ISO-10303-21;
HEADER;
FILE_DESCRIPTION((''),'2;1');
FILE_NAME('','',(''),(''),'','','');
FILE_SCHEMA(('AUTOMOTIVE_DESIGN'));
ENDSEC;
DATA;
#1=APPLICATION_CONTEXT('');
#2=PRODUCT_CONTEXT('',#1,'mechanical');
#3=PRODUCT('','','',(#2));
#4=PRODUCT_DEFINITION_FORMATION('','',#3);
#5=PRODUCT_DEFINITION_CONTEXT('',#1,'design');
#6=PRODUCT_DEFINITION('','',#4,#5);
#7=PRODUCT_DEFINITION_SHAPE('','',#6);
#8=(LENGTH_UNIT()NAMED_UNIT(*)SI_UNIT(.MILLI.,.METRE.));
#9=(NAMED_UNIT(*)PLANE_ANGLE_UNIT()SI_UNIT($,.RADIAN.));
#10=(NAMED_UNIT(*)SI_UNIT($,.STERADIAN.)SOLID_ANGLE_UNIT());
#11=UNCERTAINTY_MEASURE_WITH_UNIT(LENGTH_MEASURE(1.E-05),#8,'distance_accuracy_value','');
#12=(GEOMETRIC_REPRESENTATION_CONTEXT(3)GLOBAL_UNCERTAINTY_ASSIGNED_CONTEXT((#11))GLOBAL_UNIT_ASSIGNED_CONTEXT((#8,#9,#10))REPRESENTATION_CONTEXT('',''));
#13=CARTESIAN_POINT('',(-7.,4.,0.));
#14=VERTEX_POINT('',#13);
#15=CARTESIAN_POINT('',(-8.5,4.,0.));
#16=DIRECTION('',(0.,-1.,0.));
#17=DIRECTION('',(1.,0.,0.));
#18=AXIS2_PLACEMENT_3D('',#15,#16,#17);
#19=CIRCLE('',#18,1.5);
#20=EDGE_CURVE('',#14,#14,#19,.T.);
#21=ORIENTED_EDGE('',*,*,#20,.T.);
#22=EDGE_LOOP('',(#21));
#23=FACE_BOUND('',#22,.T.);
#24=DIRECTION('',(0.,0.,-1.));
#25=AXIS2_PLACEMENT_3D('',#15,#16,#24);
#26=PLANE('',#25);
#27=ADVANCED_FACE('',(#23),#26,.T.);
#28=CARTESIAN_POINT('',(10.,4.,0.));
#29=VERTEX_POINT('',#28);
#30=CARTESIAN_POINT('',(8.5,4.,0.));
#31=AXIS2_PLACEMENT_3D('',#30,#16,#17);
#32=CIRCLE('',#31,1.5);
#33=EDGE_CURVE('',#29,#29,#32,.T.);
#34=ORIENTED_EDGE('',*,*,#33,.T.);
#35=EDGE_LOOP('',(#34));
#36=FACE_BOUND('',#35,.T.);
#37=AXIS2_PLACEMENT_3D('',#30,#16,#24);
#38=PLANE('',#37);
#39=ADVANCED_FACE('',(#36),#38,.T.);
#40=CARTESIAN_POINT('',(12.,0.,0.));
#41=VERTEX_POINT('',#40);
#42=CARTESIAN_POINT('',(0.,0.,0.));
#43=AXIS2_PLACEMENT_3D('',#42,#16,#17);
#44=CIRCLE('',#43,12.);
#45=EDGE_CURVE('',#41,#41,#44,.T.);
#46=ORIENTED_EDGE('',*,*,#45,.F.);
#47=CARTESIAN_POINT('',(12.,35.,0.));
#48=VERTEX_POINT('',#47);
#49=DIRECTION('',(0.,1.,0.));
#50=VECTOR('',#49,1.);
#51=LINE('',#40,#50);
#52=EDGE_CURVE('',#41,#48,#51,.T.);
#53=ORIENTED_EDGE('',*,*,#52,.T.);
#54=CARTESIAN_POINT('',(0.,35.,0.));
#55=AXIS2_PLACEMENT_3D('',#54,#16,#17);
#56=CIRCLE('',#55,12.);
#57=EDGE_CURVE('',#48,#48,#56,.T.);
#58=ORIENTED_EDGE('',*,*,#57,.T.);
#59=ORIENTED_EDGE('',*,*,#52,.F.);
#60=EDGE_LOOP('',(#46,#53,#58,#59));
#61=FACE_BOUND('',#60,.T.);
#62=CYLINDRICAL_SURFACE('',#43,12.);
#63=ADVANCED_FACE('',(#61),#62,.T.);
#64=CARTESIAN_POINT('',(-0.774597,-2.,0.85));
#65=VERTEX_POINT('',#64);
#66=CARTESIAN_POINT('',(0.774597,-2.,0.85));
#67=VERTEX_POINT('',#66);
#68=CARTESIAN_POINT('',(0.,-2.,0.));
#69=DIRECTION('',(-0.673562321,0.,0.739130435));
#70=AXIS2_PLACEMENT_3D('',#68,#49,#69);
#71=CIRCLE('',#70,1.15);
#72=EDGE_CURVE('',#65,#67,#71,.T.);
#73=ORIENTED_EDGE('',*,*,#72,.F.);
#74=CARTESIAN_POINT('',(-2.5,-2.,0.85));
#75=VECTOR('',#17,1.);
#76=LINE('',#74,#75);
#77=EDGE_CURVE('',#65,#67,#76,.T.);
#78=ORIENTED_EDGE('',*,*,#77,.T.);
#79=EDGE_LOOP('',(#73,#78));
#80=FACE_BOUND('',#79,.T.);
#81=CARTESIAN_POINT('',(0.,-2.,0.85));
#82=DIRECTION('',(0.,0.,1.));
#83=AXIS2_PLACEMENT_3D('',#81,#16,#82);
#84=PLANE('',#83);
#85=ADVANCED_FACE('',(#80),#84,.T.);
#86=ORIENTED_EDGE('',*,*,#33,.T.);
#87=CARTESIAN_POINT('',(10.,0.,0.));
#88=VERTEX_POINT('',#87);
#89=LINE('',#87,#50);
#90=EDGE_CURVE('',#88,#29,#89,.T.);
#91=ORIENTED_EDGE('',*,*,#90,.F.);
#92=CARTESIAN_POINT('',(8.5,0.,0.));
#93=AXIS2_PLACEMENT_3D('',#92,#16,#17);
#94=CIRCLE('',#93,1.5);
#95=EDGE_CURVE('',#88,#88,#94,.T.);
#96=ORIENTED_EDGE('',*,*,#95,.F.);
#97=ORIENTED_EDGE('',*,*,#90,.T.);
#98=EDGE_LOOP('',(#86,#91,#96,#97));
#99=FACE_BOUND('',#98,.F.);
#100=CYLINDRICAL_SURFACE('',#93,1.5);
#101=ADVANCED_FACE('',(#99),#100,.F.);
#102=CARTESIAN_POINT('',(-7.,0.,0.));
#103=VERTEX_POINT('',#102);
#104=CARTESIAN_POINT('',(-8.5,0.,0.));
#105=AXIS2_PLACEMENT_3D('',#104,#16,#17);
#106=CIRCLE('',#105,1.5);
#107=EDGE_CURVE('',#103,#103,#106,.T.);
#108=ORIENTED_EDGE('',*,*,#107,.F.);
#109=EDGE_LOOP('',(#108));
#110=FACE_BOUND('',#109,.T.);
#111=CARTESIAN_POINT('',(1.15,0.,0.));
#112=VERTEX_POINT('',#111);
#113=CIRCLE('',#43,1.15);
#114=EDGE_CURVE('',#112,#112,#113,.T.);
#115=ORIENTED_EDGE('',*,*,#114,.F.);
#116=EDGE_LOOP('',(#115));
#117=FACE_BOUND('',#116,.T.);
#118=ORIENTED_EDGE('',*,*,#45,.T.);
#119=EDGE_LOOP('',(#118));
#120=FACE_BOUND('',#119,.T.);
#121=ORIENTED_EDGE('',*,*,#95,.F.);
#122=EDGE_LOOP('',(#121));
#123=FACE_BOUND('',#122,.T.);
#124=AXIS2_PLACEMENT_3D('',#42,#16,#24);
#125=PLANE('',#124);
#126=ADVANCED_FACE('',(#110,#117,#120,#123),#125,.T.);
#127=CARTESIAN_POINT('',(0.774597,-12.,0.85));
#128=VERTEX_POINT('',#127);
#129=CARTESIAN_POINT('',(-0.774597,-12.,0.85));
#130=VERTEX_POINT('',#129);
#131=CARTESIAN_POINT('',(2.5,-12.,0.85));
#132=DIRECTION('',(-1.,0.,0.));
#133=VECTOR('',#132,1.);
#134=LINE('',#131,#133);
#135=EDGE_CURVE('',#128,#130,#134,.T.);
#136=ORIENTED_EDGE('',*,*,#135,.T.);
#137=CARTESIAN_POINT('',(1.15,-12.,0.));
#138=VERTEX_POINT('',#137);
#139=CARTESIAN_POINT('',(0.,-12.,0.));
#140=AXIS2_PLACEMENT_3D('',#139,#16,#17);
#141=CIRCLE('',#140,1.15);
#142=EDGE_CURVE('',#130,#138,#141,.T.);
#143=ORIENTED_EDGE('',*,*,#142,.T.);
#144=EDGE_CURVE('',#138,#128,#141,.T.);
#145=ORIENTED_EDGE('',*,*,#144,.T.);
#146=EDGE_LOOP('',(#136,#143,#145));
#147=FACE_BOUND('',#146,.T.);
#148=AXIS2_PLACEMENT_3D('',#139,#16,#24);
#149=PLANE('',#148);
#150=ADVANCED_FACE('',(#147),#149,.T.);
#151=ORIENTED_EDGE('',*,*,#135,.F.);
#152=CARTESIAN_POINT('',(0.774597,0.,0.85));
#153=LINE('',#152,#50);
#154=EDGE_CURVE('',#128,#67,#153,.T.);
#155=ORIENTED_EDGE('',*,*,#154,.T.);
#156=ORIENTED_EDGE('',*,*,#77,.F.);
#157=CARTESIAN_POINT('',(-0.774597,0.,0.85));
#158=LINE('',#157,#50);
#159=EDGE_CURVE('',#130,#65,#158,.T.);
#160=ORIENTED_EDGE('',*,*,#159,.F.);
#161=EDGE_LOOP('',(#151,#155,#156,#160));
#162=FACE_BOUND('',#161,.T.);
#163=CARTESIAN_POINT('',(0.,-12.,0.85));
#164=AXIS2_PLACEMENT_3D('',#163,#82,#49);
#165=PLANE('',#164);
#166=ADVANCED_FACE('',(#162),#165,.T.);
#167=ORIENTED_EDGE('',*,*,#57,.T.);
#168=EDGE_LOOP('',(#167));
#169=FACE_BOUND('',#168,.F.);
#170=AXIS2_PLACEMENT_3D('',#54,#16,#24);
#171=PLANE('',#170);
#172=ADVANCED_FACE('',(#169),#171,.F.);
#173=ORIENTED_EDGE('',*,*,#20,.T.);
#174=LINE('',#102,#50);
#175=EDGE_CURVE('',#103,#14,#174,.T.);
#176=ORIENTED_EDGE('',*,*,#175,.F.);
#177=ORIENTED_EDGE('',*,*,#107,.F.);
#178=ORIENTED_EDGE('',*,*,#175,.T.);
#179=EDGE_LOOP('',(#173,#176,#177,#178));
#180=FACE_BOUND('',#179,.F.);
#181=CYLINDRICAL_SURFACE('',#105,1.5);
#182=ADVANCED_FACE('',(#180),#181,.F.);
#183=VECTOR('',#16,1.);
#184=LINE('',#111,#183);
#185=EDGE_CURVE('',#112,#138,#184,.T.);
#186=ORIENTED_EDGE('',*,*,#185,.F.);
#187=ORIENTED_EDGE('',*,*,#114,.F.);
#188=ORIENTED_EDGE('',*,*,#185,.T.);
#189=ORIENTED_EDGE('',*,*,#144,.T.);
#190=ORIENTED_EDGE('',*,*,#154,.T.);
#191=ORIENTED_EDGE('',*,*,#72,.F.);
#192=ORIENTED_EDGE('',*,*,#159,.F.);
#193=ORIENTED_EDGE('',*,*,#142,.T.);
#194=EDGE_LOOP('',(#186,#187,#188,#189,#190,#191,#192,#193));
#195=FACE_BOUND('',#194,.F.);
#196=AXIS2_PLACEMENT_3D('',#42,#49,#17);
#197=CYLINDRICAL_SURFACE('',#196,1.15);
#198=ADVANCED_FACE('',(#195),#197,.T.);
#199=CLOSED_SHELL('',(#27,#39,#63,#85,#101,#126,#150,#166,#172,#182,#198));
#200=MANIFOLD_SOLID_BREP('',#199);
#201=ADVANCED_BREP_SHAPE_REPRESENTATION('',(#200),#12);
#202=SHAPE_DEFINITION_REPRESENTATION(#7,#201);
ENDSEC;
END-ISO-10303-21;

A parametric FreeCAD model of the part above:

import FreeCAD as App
import Part
import Sketcher


def add_polygon(sketch, points):
    """Adds a closed chain of lines whose ends are joined by coincident constraints."""
    first, n = sketch.GeometryCount, len(points)
    for a, b in zip(points, points[1:] + points[:1]):
        sketch.addGeometry(Part.LineSegment(App.Vector(*a, 0), App.Vector(*b, 0)), False)
    for i in range(n):
        sketch.addConstraint(Sketcher.Constraint("Coincident", first + i, 2, first + (i + 1) % n, 1))

doc = App.newDocument("Part")
params = doc.addObject("Spreadsheet::Sheet", "Params")
for row, (alias, value) in enumerate([
    ("sketch1_diameter", "24 mm"),
    ("pad1_length", "35 mm"),
    ("sketch2_diameter", "3 mm"),
    ("pocket1_length", "4 mm"),
    ("sketch3_diameter", "2.3 mm"),
    ("pad2_length", "12 mm"),
    ("sketch4_width", "10 mm"),
    ("sketch4_height", "0.3 mm"),
    ("pocket2_length", "5 mm"),
], start=1):
    params.set(f"A{row}", alias)
    params.set(f"B{row}", "=" + value)
    params.setAlias(f"B{row}", alias)

body = doc.addObject("PartDesign::Body", "Body")

# Sketch on XZ plane
sketch1 = body.newObject("Sketcher::SketchObject", "Sketch")
sketch1.AttachmentSupport = (doc.getObject("XZ_Plane"), [""])
sketch1.MapMode = "FlatFace"
sketch1.addGeometry(Part.Circle(App.Vector(0, 0, 0), App.Vector(0, 0, 1), 12), False)
sketch1.addConstraint(Sketcher.Constraint("Coincident", 0, 3, -1, 1))
sketch1.addConstraint(Sketcher.Constraint("Diameter", 0, 24.0))
sketch1.setExpression("Constraints[1]", "Params.sketch1_diameter")
pad1 = body.newObject("PartDesign::Pad", "Pad")
pad1.Profile = sketch1
pad1.setExpression("Length", "Params.pad1_length")
pad1.Reversed = True

# Sketch on XZ plane
sketch2 = body.newObject("Sketcher::SketchObject", "Sketch001")
sketch2.AttachmentSupport = (doc.getObject("XZ_Plane"), [""])
sketch2.MapMode = "FlatFace"
sketch2.addGeometry(Part.Circle(App.Vector(-8.5, 0, 0), App.Vector(0, 0, 1), 1.5), False)
sketch2.addGeometry(Part.Circle(App.Vector(8.5, 0, 0), App.Vector(0, 0, 1), 1.5), False)
sketch2.addConstraint(Sketcher.Constraint("Equal", 0, 1))
sketch2.addConstraint(Sketcher.Constraint("Symmetric", 0, 3, 1, 3, -1, 1))
sketch2.addConstraint(Sketcher.Constraint("PointOnObject", 0, 3, -1))
sketch2.addConstraint(Sketcher.Constraint("Diameter", 0, 3.0))
sketch2.addConstraint(Sketcher.Constraint("DistanceX", 0, 3, 1, 3, 17.0))
sketch2.setExpression("Constraints[3]", "Params.sketch2_diameter")
pocket1 = body.newObject("PartDesign::Pocket", "Pocket")
pocket1.Profile = sketch2
pocket1.setExpression("Length", "Params.pocket1_length")

# Sketch on XZ plane
sketch3 = body.newObject("Sketcher::SketchObject", "Sketch002")
sketch3.AttachmentSupport = (doc.getObject("XZ_Plane"), [""])
sketch3.MapMode = "FlatFace"
sketch3.addGeometry(Part.Circle(App.Vector(0, 0, 0), App.Vector(0, 0, 1), 1.15), False)
sketch3.addConstraint(Sketcher.Constraint("Coincident", 0, 3, -1, 1))
sketch3.addConstraint(Sketcher.Constraint("Diameter", 0, 2.3))
sketch3.setExpression("Constraints[1]", "Params.sketch3_diameter")
pad2 = body.newObject("PartDesign::Pad", "Pad001")
pad2.Profile = sketch3
pad2.setExpression("Length", "Params.pad2_length")

# Sketch on YZ plane
sketch4 = body.newObject("Sketcher::SketchObject", "Sketch003")
sketch4.AttachmentSupport = (doc.getObject("YZ_Plane"), [""])
sketch4.MapMode = "FlatFace"
add_polygon(sketch4, [(-12, 1.15), (-12, 0.85), (-2, 0.85), (-2, 1.15)])  # lines 0-3
sketch4.addConstraint(Sketcher.Constraint("Vertical", 0))
sketch4.addConstraint(Sketcher.Constraint("Horizontal", 1))
sketch4.addConstraint(Sketcher.Constraint("Vertical", 2))
sketch4.addConstraint(Sketcher.Constraint("Horizontal", 3))
sketch4.addConstraint(Sketcher.Constraint("DistanceX", 1, 1, 1, 2, 10.0))
sketch4.addConstraint(Sketcher.Constraint("DistanceY", 0, 2, 0, 1, 0.3))
sketch4.addConstraint(Sketcher.Constraint("DistanceX", 0, 2, -1, 1, 12.0))
sketch4.addConstraint(Sketcher.Constraint("DistanceY", -1, 1, 0, 2, 0.85))
sketch4.setExpression("Constraints[8]", "Params.sketch4_width")
sketch4.setExpression("Constraints[9]", "Params.sketch4_height")
pocket2 = body.newObject("PartDesign::Pocket", "Pocket001")
pocket2.Profile = sketch4
pocket2.setExpression("Length", "Params.pocket2_length")
pocket2.Midplane = True

doc.recompute()
